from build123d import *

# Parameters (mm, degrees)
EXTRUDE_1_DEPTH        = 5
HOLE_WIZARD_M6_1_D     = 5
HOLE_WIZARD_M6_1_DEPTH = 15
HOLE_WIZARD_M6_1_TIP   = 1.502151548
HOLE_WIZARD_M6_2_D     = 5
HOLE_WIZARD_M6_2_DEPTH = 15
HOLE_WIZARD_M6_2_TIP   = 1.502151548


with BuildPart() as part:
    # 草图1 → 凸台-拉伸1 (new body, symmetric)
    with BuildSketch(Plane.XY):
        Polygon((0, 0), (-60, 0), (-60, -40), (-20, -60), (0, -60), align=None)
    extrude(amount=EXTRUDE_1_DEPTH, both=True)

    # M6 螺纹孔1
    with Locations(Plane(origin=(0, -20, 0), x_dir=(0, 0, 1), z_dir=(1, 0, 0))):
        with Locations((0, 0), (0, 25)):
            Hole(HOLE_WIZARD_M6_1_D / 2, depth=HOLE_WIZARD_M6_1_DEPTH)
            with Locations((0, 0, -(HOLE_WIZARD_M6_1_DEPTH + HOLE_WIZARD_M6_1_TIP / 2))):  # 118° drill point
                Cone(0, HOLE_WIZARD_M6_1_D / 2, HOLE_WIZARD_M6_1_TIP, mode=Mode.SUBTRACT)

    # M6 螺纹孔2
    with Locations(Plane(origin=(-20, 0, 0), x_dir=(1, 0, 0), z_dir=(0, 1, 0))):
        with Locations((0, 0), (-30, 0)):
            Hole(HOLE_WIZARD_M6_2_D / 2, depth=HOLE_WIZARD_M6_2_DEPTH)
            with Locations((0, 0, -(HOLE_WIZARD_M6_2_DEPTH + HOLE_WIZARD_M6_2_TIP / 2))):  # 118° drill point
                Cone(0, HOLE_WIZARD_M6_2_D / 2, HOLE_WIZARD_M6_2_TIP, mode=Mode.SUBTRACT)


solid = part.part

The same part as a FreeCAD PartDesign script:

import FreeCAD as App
import Part
import Sketcher

V = App.Vector

doc = App.newDocument("Part")
params = doc.addObject("Spreadsheet::Sheet", "Params")
for row, (alias, value) in enumerate([
    ("sketch1_width", "60 mm"),
    ("sketch1_width2", "20 mm"),
    ("sketch1_height", "40 mm"),
    ("pad1_length", "10 mm"),
    ("sketch2_diameter", "5 mm"),
    ("hole_diameter", "5 mm"),
    ("hole_depth", "15 mm"),
    ("sketch3_diameter", "5 mm"),
    ("hole2_diameter", "5 mm"),
    ("hole2_depth", "15 mm"),
], start=1):
    params.set(f"A{row}", alias)
    params.set(f"B{row}", "=" + value)
    params.setAlias(f"B{row}", alias)

body = doc.addObject("PartDesign::Body", "Body")

# Sketch on XY plane
sketch1 = doc.addObject("Sketcher::SketchObject", "Sketch")
body.addObject(sketch1)
sketch1.AttachmentSupport = (doc.XY_Plane, [""])
sketch1.MapMode = "FlatFace"
sketch1.addGeometry([
    Part.LineSegment(V(0, 0, 0), V(-60, 0, 0)),  # 0
    Part.LineSegment(V(-60, 0, 0), V(-60, -40, 0)),  # 1
    Part.LineSegment(V(-60, -40, 0), V(-20, -60, 0)),  # 2
    Part.LineSegment(V(-20, -60, 0), V(0, -60, 0)),  # 3
    Part.LineSegment(V(0, -60, 0), V(0, 0, 0)),  # 4
], False)
sketch1.addConstraint([
    Sketcher.Constraint("Coincident", 0, 2, 1, 1),
    Sketcher.Constraint("Coincident", 1, 2, 2, 1),
    Sketcher.Constraint("Coincident", 2, 2, 3, 1),
    Sketcher.Constraint("Coincident", 3, 2, 4, 1),
    Sketcher.Constraint("Coincident", 4, 2, 0, 1),
    Sketcher.Constraint("Horizontal", 0),
    Sketcher.Constraint("Vertical", 1),
    Sketcher.Constraint("Horizontal", 3),
    Sketcher.Constraint("Vertical", 4),
    Sketcher.Constraint("Coincident", 4, 2, -1, 1),
    Sketcher.Constraint("Equal", 0, 4),
    Sketcher.Constraint("DistanceX", 0, 2, 0, 1, 60.0),
    Sketcher.Constraint("DistanceX", 3, 1, 3, 2, 20.0),
    Sketcher.Constraint("DistanceY", 1, 2, 1, 1, 40.0),
])
sketch1.setExpression("Constraints[11]", "Params.sketch1_width")
sketch1.setExpression("Constraints[12]", "Params.sketch1_width2")
sketch1.setExpression("Constraints[13]", "Params.sketch1_height")
pad1 = doc.addObject("PartDesign::Pad", "Pad")
body.addObject(pad1)
pad1.Profile = sketch1
pad1.setExpression("Length", "Params.pad1_length")
pad1.Midplane = True

# Sketch on YZ plane
sketch2 = doc.addObject("Sketcher::SketchObject", "Sketch001")
body.addObject(sketch2)
sketch2.AttachmentSupport = (doc.YZ_Plane, [""])
sketch2.MapMode = "FlatFace"
sketch2.addGeometry([
    Part.Circle(V(-20, 0, 0), V(0, 0, 1), 2.5),
    Part.Circle(V(-45, 0, 0), V(0, 0, 1), 2.5),
], False)
sketch2.addConstraint([
    Sketcher.Constraint("Equal", 0, 1),
    Sketcher.Constraint("PointOnObject", 0, 3, -1),
    Sketcher.Constraint("PointOnObject", 1, 3, -1),
    Sketcher.Constraint("Diameter", 0, 5.0),
    Sketcher.Constraint("DistanceX", 0, 3, -1, 1, 20.0),
    Sketcher.Constraint("DistanceX", 1, 3, -1, 1, 45.0),
])
sketch2.setExpression("Constraints[3]", "Params.sketch2_diameter")
doc.recompute()
hole = doc.addObject("PartDesign::Hole", "Hole")
body.addObject(hole)
hole.Profile = sketch2
hole.ThreadType = "None"
hole.setExpression("Diameter", "Params.hole_diameter")
hole.DepthType = "Dimension"
hole.setExpression("Depth", "Params.hole_depth")
hole.DrillPoint = "Angled"
hole.DrillPointAngle = 118

# Sketch on XZ plane
sketch3 = doc.addObject("Sketcher::SketchObject", "Sketch002")
body.addObject(sketch3)
sketch3.AttachmentSupport = (doc.XZ_Plane, [""])
sketch3.MapMode = "FlatFace"
sketch3.addGeometry([
    Part.Circle(V(-20, 0, 0), V(0, 0, 1), 2.5),
    Part.Circle(V(-50, 0, 0), V(0, 0, 1), 2.5),
], False)
sketch3.addConstraint([
    Sketcher.Constraint("Equal", 0, 1),
    Sketcher.Constraint("PointOnObject", 0, 3, -1),
    Sketcher.Constraint("PointOnObject", 1, 3, -1),
    Sketcher.Constraint("Diameter", 0, 5.0),
    Sketcher.Constraint("DistanceX", 0, 3, -1, 1, 20.0),
    Sketcher.Constraint("DistanceX", 1, 3, -1, 1, 50.0),
])
sketch3.setExpression("Constraints[3]", "Params.sketch3_diameter")
doc.recompute()
hole2 = doc.addObject("PartDesign::Hole", "Hole001")
body.addObject(hole2)
hole2.Profile = sketch3
hole2.ThreadType = "None"
hole2.setExpression("Diameter", "Params.hole2_diameter")
hole2.DepthType = "Dimension"
hole2.setExpression("Depth", "Params.hole2_depth")
hole2.DrillPoint = "Angled"
hole2.DrillPointAngle = 118
hole2.Reversed = True

doc.recompute()
